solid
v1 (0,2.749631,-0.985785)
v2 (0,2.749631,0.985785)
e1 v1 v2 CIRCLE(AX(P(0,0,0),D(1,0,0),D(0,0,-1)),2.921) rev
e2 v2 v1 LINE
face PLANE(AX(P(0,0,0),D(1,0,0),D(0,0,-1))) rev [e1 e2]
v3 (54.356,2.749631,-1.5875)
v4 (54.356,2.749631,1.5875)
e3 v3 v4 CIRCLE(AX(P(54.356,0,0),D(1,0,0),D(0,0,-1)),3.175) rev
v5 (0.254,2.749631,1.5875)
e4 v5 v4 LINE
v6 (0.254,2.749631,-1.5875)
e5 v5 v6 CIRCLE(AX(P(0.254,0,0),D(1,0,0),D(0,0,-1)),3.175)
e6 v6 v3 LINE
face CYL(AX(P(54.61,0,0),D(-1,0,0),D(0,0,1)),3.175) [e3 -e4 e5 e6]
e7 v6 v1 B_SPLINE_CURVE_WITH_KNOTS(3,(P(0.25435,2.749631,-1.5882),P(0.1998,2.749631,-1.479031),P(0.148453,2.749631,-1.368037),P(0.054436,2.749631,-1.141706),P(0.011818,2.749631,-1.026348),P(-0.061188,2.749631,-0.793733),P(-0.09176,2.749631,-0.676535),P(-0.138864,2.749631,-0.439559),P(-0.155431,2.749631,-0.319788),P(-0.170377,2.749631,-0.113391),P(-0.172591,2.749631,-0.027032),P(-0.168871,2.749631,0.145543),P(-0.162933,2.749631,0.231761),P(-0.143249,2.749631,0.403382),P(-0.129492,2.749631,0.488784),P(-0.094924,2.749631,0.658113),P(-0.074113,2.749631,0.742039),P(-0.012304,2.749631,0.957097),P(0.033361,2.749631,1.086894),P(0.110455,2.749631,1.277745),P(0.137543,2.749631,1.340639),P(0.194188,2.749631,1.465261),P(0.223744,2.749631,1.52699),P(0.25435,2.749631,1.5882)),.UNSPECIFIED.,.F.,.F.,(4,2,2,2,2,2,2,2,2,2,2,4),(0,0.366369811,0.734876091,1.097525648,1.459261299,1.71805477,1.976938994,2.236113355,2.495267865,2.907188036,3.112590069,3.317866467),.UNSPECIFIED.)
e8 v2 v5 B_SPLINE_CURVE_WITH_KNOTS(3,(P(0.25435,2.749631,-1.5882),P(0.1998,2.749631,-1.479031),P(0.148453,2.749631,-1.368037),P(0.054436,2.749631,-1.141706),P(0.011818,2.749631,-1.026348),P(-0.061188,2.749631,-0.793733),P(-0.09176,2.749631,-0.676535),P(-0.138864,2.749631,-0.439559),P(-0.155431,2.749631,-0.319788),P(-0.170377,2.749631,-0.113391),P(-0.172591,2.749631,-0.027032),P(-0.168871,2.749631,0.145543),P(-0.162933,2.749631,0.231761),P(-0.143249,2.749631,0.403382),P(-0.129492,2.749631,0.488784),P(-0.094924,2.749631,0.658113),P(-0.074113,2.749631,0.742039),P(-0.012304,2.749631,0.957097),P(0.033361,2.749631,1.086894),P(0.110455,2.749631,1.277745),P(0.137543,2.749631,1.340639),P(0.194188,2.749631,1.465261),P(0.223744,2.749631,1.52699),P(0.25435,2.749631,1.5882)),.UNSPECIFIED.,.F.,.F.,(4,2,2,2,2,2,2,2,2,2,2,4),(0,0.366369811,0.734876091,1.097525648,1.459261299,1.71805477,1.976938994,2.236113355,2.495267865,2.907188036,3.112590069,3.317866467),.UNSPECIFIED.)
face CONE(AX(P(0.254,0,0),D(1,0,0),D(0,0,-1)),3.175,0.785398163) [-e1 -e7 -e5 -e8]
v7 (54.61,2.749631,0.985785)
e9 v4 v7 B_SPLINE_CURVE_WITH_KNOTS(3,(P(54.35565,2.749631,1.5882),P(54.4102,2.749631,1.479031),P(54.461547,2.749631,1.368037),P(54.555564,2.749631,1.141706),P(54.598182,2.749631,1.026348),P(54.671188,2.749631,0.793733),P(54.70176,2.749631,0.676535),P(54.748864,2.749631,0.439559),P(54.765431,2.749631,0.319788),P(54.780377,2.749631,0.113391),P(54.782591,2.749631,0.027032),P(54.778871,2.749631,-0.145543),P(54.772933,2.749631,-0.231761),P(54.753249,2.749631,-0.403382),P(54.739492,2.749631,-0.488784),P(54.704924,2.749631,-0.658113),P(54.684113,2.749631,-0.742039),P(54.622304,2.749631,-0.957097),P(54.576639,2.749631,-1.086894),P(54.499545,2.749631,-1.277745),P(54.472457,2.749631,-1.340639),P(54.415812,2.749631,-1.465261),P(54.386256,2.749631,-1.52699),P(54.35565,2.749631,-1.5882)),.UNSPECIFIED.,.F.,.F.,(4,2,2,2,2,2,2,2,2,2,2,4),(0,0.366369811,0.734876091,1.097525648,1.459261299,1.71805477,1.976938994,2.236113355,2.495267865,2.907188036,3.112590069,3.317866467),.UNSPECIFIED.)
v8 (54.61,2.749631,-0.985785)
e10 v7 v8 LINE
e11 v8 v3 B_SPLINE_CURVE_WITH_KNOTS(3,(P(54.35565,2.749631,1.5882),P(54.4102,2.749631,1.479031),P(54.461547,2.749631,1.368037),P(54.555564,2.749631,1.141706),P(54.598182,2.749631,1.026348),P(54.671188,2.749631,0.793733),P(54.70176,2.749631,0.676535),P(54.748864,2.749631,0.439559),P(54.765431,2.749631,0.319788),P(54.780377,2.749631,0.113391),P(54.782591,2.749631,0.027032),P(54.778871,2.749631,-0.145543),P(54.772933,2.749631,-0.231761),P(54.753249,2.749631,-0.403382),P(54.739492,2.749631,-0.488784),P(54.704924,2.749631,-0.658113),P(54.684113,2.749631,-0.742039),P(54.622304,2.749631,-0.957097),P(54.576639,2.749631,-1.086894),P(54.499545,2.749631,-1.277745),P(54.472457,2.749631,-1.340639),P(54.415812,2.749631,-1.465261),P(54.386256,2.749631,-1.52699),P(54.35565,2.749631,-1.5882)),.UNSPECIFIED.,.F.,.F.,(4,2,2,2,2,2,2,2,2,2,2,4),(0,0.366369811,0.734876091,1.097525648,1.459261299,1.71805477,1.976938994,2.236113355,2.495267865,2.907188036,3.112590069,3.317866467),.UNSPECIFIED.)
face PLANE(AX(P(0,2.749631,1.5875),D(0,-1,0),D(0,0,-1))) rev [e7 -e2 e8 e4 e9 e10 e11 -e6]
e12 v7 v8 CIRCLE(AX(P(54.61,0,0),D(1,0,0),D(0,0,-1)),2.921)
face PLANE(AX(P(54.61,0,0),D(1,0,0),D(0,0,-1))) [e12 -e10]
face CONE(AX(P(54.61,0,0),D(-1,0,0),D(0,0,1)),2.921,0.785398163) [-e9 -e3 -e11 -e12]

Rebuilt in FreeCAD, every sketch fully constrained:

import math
import FreeCAD as App
import Part
import Sketcher
Q = App.Units.Quantity


def edges_at(feature, points):
    """Names of the edges that pass closest to the given points."""
    edges = feature.Shape.Edges
    near = lambda p: min(range(len(edges)), key=lambda i: edges[i].distToShape(Part.Vertex(*p))[0])
    return sorted({f"Edge{near(p) + 1}" for p in points})

doc = App.newDocument("Part")
body = doc.addObject("PartDesign::Body", "Body")

# Sketch on YZ plane
sketch1 = doc.addObject("Sketcher::SketchObject", "Sketch")
body.addObject(sketch1)
sketch1.AttachmentSupport = (doc.YZ_Plane, [""])
sketch1.MapMode = "FlatFace"
sketch1.addGeometry(Part.Circle(App.Vector(0, 0, 0), App.Vector(0, 0, 1), 3.2), False)
sketch1.addConstraint([
    Sketcher.Constraint("Coincident", 0, 3, -1, 1),
    Sketcher.Constraint("Diameter", 0, Q("0.25 in")),
])
pad1 = doc.addObject("PartDesign::Pad", "Pad")
body.addObject(pad1)
pad1.Profile = sketch1
pad1.Length = Q("2.15 in")
doc.recompute()

chamfer = doc.addObject("PartDesign::Chamfer", "Chamfer")
body.addObject(chamfer)
chamfer.Base = (pad1, edges_at(pad1, [(0, 0, 3.175), (54.61, 0, 3.175)]))
chamfer.Size = Q("0.01 in")

# Sketch on YZ plane
sketch2 = doc.addObject("Sketcher::SketchObject", "Sketch001")
body.addObject(sketch2)
sketch2.AttachmentSupport = (doc.YZ_Plane, [""])
sketch2.MapMode = "FlatFace"
sketch2.AttachmentOffset = App.Placement(App.Vector(0, 0, 2.15 * 25.4), App.Rotation())
sketch2.addGeometry([
    Part.LineSegment(App.Vector(2.7, 1.6, 0), App.Vector(2.7, -1.6, 0)),
    Part.ArcOfCircle(Part.Circle(App.Vector(0, 0, 0), App.Vector(0, 0, 1), 3.2), math.radians(-30), math.radians(30)),
], False)
sketch2.addConstraint([
    Sketcher.Constraint("Coincident", 0, 1, 1, 2),
    Sketcher.Constraint("Coincident", 1, 1, 0, 2),
    Sketcher.Constraint("Vertical", 0),
    Sketcher.Constraint("Coincident", 1, 3, -1, 1),
    Sketcher.Constraint("Radius", 1, Q("0.125 in")),
    Sketcher.Constraint("DistanceY", 0, 2, 0, 1, Q("0.125 in")),
])
pocket1 = doc.addObject("PartDesign::Pocket", "Pocket")
body.addObject(pocket1)
pocket1.Profile = sketch2
pocket1.Type = "ThroughAll"

doc.recompute()
